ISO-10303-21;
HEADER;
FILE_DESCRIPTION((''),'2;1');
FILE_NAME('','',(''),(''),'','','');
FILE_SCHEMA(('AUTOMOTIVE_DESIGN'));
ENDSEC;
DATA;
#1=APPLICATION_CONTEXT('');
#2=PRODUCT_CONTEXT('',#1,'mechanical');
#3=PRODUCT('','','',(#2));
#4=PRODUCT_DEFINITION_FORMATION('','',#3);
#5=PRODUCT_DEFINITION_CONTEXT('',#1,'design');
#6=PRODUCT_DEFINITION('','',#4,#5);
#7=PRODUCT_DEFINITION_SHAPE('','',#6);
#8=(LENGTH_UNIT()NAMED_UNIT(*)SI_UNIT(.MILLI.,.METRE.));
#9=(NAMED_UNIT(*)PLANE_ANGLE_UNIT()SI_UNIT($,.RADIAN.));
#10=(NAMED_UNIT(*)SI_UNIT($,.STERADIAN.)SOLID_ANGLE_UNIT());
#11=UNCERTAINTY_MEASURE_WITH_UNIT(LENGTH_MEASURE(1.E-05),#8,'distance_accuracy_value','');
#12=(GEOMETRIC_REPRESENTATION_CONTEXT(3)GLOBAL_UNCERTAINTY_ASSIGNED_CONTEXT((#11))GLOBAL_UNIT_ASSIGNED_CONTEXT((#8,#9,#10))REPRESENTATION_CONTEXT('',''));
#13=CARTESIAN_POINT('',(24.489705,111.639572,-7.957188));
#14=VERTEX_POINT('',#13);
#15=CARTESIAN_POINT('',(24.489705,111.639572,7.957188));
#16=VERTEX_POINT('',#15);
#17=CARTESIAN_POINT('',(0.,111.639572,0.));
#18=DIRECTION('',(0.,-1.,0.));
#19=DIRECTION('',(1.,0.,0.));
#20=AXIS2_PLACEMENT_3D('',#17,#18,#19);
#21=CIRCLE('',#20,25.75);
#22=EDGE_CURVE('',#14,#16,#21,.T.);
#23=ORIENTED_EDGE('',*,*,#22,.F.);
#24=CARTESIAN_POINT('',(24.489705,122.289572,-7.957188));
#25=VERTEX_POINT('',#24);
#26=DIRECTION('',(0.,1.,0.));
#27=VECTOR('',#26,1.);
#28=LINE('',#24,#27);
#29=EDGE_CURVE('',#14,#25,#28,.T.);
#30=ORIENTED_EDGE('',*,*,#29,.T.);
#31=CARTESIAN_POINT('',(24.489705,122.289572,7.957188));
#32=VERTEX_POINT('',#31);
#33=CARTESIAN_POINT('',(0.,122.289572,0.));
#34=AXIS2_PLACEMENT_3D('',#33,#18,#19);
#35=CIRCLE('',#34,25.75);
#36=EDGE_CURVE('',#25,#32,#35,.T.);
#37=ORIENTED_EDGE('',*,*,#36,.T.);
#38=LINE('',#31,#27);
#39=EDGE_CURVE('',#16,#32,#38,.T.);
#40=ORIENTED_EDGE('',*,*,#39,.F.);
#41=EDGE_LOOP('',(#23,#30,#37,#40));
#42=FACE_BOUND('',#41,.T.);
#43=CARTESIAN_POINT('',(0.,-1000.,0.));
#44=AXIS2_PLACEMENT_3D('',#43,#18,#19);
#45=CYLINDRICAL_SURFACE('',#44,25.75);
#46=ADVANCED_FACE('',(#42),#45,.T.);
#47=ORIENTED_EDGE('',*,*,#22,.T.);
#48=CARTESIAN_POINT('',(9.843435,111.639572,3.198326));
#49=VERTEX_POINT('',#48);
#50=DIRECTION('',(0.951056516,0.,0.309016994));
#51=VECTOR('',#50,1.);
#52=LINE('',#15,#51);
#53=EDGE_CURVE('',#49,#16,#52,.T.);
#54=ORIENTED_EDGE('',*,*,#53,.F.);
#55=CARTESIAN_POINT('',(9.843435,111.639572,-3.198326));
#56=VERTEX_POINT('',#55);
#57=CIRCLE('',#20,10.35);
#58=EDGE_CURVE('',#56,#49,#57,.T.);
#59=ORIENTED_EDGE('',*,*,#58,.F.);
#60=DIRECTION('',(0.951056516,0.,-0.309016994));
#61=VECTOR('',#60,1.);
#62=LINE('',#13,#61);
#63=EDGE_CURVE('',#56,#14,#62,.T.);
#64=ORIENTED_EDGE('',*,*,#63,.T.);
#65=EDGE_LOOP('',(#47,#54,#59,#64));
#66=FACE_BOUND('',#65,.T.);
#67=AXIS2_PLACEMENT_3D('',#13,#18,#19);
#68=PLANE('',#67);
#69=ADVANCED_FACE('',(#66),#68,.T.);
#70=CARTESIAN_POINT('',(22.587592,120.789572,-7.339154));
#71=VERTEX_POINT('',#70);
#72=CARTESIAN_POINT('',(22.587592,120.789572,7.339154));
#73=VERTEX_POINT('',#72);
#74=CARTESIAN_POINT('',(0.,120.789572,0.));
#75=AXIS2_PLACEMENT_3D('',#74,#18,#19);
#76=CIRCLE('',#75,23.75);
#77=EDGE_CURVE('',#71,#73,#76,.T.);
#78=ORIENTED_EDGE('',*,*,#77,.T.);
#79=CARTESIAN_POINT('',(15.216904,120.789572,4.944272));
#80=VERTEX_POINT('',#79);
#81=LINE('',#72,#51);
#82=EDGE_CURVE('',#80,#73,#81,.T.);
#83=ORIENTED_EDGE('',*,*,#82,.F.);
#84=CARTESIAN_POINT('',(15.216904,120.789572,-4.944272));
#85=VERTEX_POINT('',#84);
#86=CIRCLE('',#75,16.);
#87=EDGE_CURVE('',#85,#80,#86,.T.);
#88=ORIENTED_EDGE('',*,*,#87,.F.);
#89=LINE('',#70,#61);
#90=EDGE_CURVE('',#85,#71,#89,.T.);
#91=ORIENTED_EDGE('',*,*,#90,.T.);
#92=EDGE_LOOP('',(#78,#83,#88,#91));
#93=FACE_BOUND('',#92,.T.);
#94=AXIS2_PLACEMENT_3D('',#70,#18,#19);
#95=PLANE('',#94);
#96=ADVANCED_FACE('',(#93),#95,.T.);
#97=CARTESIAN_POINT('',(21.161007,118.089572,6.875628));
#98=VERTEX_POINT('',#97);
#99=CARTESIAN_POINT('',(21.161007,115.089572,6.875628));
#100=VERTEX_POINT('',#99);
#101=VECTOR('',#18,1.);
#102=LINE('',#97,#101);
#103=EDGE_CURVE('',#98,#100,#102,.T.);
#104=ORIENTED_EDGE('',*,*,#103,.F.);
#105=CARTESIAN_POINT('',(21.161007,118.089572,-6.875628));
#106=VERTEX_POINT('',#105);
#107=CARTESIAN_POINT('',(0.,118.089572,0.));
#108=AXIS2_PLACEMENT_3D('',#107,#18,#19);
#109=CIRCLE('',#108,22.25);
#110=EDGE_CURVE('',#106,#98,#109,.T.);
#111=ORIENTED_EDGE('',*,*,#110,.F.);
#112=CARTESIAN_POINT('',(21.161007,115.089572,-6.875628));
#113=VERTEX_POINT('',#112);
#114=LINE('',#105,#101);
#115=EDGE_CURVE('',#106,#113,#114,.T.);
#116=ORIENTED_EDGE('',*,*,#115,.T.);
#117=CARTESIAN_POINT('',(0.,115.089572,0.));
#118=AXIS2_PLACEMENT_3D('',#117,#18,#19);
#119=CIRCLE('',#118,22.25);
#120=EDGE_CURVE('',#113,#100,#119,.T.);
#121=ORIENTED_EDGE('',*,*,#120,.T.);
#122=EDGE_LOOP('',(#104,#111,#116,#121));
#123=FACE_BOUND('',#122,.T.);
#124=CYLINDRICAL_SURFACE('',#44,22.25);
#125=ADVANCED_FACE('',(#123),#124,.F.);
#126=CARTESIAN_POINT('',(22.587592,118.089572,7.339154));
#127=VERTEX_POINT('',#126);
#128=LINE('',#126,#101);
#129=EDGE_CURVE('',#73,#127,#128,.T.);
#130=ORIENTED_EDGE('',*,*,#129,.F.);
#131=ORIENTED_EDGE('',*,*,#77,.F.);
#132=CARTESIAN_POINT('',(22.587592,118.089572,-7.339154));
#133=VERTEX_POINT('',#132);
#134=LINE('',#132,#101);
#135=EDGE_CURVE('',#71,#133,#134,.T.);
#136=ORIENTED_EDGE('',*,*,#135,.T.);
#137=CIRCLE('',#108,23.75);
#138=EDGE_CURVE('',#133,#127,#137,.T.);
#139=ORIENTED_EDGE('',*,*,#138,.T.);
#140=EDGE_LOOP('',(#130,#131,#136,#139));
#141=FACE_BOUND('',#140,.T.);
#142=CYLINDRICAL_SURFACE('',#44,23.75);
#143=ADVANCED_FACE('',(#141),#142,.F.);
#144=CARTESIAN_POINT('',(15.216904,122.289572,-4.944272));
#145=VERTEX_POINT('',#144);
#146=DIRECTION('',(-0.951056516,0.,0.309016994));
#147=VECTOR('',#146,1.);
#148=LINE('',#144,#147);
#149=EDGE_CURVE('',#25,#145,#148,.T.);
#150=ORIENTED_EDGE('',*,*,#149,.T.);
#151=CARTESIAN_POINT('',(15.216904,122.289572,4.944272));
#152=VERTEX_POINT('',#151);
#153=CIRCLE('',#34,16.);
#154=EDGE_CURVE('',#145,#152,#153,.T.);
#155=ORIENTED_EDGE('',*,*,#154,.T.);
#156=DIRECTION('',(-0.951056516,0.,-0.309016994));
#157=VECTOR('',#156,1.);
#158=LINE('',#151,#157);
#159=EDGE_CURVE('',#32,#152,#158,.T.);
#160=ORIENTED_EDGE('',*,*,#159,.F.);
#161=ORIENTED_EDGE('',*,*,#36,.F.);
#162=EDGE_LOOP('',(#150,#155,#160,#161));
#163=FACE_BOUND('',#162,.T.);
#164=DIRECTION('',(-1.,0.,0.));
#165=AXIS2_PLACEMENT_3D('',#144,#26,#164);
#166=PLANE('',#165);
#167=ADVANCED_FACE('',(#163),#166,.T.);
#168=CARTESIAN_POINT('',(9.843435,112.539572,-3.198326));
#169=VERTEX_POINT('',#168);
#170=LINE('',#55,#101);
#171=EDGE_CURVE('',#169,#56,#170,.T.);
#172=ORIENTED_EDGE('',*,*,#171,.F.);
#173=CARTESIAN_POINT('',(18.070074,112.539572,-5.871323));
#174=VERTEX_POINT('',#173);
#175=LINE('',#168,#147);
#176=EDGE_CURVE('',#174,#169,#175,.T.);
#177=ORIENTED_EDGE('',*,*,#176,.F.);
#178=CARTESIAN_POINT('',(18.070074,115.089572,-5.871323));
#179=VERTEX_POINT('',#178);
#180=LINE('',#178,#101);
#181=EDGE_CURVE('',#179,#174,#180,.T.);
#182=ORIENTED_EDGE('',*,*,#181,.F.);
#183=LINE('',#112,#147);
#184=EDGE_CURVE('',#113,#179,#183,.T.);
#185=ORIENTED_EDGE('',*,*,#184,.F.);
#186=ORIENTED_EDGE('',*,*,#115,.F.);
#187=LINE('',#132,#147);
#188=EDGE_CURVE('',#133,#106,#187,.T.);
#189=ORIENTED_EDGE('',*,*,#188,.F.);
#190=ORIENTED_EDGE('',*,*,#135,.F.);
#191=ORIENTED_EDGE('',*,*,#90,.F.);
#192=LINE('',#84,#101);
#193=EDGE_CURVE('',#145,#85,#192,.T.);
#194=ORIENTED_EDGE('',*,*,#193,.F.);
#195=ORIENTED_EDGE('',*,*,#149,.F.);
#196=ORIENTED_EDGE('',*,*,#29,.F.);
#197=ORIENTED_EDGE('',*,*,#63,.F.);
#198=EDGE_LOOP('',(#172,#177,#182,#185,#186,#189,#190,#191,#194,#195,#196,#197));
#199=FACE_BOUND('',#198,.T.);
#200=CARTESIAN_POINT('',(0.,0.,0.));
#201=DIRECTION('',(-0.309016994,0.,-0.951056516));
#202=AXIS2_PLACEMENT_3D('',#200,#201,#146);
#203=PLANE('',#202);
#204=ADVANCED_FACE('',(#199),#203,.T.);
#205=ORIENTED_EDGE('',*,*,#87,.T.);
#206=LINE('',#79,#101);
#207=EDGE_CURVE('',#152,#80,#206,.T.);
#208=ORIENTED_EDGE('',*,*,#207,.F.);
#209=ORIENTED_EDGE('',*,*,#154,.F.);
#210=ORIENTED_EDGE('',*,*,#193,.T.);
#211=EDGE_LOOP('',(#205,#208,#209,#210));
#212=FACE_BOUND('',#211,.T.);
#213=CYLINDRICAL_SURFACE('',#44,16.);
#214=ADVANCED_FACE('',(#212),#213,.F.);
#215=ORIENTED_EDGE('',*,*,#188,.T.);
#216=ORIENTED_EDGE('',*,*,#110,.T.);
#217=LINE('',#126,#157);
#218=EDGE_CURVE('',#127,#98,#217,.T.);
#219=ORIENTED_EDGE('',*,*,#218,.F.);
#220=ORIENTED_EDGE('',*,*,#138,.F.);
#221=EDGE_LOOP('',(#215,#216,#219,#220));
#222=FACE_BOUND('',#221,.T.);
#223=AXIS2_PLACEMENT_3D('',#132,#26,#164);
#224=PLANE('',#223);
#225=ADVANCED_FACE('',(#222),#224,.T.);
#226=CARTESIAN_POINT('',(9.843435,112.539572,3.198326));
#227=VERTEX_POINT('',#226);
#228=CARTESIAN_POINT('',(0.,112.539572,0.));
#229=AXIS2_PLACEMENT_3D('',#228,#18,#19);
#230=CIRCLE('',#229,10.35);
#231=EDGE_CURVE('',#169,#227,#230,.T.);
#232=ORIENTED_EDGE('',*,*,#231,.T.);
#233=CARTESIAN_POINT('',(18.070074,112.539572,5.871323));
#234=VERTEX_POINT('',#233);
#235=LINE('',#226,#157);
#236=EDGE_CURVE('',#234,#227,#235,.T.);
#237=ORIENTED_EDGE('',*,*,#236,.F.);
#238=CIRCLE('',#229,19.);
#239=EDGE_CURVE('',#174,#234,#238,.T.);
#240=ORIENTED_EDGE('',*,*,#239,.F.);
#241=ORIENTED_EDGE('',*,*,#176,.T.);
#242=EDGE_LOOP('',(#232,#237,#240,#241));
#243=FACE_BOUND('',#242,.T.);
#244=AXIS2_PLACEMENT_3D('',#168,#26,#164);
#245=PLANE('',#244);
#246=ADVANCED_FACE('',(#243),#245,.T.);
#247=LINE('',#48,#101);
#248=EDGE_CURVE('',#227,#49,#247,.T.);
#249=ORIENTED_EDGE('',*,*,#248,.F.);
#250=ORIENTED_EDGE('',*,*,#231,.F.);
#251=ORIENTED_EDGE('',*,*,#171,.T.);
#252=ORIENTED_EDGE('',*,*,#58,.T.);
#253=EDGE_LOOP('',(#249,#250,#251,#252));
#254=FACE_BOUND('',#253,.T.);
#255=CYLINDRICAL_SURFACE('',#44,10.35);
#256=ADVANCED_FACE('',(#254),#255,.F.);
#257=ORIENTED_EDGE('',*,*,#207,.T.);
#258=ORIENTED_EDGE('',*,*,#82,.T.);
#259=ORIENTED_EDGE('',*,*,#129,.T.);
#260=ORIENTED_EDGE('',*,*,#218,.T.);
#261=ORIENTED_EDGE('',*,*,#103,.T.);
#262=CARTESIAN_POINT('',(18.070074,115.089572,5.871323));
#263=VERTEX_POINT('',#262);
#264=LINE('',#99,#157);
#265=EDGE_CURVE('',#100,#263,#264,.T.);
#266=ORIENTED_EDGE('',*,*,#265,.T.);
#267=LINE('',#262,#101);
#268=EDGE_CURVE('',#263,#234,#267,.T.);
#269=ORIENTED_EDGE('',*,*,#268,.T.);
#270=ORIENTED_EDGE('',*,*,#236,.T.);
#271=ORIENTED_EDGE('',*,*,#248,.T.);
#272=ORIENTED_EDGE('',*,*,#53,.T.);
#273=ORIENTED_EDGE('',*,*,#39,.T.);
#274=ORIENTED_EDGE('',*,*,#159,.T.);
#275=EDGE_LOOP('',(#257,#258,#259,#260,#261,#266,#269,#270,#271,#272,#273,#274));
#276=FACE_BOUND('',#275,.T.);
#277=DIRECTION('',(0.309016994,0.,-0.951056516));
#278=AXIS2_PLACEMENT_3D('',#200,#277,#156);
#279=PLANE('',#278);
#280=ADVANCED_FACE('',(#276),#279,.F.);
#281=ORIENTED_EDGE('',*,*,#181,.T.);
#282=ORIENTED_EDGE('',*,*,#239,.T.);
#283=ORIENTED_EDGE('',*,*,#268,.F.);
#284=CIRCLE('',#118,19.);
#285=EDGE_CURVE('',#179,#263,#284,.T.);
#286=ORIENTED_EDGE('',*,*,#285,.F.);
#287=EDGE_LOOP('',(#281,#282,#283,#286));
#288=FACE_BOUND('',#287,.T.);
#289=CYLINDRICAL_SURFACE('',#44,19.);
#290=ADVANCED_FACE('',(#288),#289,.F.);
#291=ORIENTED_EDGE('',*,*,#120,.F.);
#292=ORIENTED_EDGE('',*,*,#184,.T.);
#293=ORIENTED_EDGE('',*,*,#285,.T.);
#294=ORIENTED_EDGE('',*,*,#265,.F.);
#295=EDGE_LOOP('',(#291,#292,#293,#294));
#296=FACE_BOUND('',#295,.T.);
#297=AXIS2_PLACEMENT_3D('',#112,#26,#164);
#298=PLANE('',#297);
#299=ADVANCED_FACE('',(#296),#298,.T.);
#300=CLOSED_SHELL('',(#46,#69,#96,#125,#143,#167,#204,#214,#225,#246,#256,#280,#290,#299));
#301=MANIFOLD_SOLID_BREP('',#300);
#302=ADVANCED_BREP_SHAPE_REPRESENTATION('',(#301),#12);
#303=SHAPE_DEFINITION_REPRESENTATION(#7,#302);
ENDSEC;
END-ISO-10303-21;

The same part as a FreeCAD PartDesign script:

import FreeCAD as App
import Part
import Sketcher
from FreeCAD import Vector

doc = App.newDocument("Part")
body = doc.addObject("PartDesign::Body", "Body")

sketch1 = body.newObject("Sketcher::SketchObject", "Sketch")
sketch1.AttachmentSupport = (doc.getObject("XY_Plane"), [""])
sketch1.MapMode = "FlatFace"
sketch1.addGeometry([
    Part.LineSegment(Vector(19, 112.5, 0), Vector(10.3, 112.5, 0)),
    Part.LineSegment(Vector(10.3, 112.5, 0), Vector(10.3, 111.6, 0)),
    Part.LineSegment(Vector(10.3, 111.6, 0), Vector(25.8, 111.6, 0)),
    Part.LineSegment(Vector(25.8, 111.6, 0), Vector(25.8, 122.3, 0)),
    Part.LineSegment(Vector(25.8, 122.3, 0), Vector(16, 122.3, 0)),
    Part.LineSegment(Vector(16, 122.3, 0), Vector(16, 120.8, 0)),
    Part.LineSegment(Vector(16, 120.8, 0), Vector(23.8, 120.8, 0)),
    Part.LineSegment(Vector(23.8, 120.8, 0), Vector(23.8, 118.1, 0)),
    Part.LineSegment(Vector(23.8, 118.1, 0), Vector(22.2, 118.1, 0)),
    Part.LineSegment(Vector(22.2, 118.1, 0), Vector(22.2, 115.1, 0)),
    Part.LineSegment(Vector(22.2, 115.1, 0), Vector(19, 115.1, 0)),
    Part.LineSegment(Vector(19, 115.1, 0), Vector(19, 112.5, 0)),
], False)
sketch1.addConstraint([
    Sketcher.Constraint("Coincident", 0, 2, 1, 1),
    Sketcher.Constraint("Coincident", 1, 2, 2, 1),
    Sketcher.Constraint("Coincident", 2, 2, 3, 1),
    Sketcher.Constraint("Coincident", 3, 2, 4, 1),
    Sketcher.Constraint("Coincident", 4, 2, 5, 1),
    Sketcher.Constraint("Coincident", 5, 2, 6, 1),
    Sketcher.Constraint("Coincident", 6, 2, 7, 1),
    Sketcher.Constraint("Coincident", 7, 2, 8, 1),
    Sketcher.Constraint("Coincident", 8, 2, 9, 1),
    Sketcher.Constraint("Coincident", 9, 2, 10, 1),
    Sketcher.Constraint("Coincident", 10, 2, 11, 1),
    Sketcher.Constraint("Coincident", 11, 2, 0, 1),
    Sketcher.Constraint("Horizontal", 0),
    Sketcher.Constraint("Vertical", 1),
    Sketcher.Constraint("Horizontal", 2),
    Sketcher.Constraint("Vertical", 3),
    Sketcher.Constraint("Horizontal", 4),
    Sketcher.Constraint("Vertical", 5),
    Sketcher.Constraint("Horizontal", 6),
    Sketcher.Constraint("Vertical", 7),
    Sketcher.Constraint("Horizontal", 8),
    Sketcher.Constraint("Vertical", 9),
    Sketcher.Constraint("Horizontal", 10),
    Sketcher.Constraint("Vertical", 11),
    Sketcher.Constraint("Equal", 8, 5),
    Sketcher.Constraint("DistanceY", 9, 2, 9, 1, 3.0),
    Sketcher.Constraint("DistanceX", 2, 1, 2, 2, 15.4),
    Sketcher.Constraint("DistanceX", 8, 2, 8, 1, 1.5),
    Sketcher.Constraint("DistanceY", 1, 2, 1, 1, 0.9),
    Sketcher.Constraint("DistanceY", 7, 2, 7, 1, 2.7),
    Sketcher.Constraint("DistanceX", -1, 1, 4, 2, 16.0),
    Sketcher.Constraint("DistanceX", -1, 1, 10, 2, 19.0),
    Sketcher.Constraint("DistanceX", 6, 2, 3, 2, 2.0),
    Sketcher.Constraint("DistanceX", 0, 2, 0, 1, 8.65),
    Sketcher.Constraint("DistanceY", 3, 1, 3, 2, 10.65),
    Sketcher.Constraint("DistanceY", -1, 1, 0, 2, 112.539572),
])
revolution = body.newObject("PartDesign::Revolution", "Revolution")
revolution.Profile = sketch1
revolution.ReferenceAxis = (sketch1, ["V_Axis"])
revolution.Angle = 18

sketch2 = body.newObject("Sketcher::SketchObject", "Sketch001")
sketch2.AttachmentSupport = (doc.getObject("XY_Plane"), [""])
sketch2.MapMode = "FlatFace"
sketch2.addGeometry([
    Part.LineSegment(Vector(19, 112.5, 0), Vector(10.3, 112.5, 0)),
    Part.LineSegment(Vector(10.3, 112.5, 0), Vector(10.3, 111.6, 0)),
    Part.LineSegment(Vector(10.3, 111.6, 0), Vector(25.8, 111.6, 0)),
    Part.LineSegment(Vector(25.8, 111.6, 0), Vector(25.8, 122.3, 0)),
    Part.LineSegment(Vector(25.8, 122.3, 0), Vector(16, 122.3, 0)),
    Part.LineSegment(Vector(16, 122.3, 0), Vector(16, 120.8, 0)),
    Part.LineSegment(Vector(16, 120.8, 0), Vector(23.8, 120.8, 0)),
    Part.LineSegment(Vector(23.8, 120.8, 0), Vector(23.8, 118.1, 0)),
    Part.LineSegment(Vector(23.8, 118.1, 0), Vector(22.2, 118.1, 0)),
    Part.LineSegment(Vector(22.2, 118.1, 0), Vector(22.2, 115.1, 0)),
    Part.LineSegment(Vector(22.2, 115.1, 0), Vector(19, 115.1, 0)),
    Part.LineSegment(Vector(19, 115.1, 0), Vector(19, 112.5, 0)),
], False)
sketch2.addConstraint([
    Sketcher.Constraint("Coincident", 0, 2, 1, 1),
    Sketcher.Constraint("Coincident", 1, 2, 2, 1),
    Sketcher.Constraint("Coincident", 2, 2, 3, 1),
    Sketcher.Constraint("Coincident", 3, 2, 4, 1),
    Sketcher.Constraint("Coincident", 4, 2, 5, 1),
    Sketcher.Constraint("Coincident", 5, 2, 6, 1),
    Sketcher.Constraint("Coincident", 6, 2, 7, 1),
    Sketcher.Constraint("Coincident", 7, 2, 8, 1),
    Sketcher.Constraint("Coincident", 8, 2, 9, 1),
    Sketcher.Constraint("Coincident", 9, 2, 10, 1),
    Sketcher.Constraint("Coincident", 10, 2, 11, 1),
    Sketcher.Constraint("Coincident", 11, 2, 0, 1),
    Sketcher.Constraint("Horizontal", 0),
    Sketcher.Constraint("Vertical", 1),
    Sketcher.Constraint("Horizontal", 2),
    Sketcher.Constraint("Vertical", 3),
    Sketcher.Constraint("Horizontal", 4),
    Sketcher.Constraint("Vertical", 5),
    Sketcher.Constraint("Horizontal", 6),
    Sketcher.Constraint("Vertical", 7),
    Sketcher.Constraint("Horizontal", 8),
    Sketcher.Constraint("Vertical", 9),
    Sketcher.Constraint("Horizontal", 10),
    Sketcher.Constraint("Vertical", 11),
    Sketcher.Constraint("Equal", 8, 5),
    Sketcher.Constraint("DistanceY", 9, 2, 9, 1, 3.0),
    Sketcher.Constraint("DistanceX", 2, 1, 2, 2, 15.4),
    Sketcher.Constraint("DistanceX", 8, 2, 8, 1, 1.5),
    Sketcher.Constraint("DistanceY", 1, 2, 1, 1, 0.9),
    Sketcher.Constraint("DistanceY", 7, 2, 7, 1, 2.7),
    Sketcher.Constraint("DistanceX", -1, 1, 4, 2, 16.0),
    Sketcher.Constraint("DistanceX", -1, 1, 10, 2, 19.0),
    Sketcher.Constraint("DistanceX", 6, 2, 3, 2, 2.0),
    Sketcher.Constraint("DistanceX", 0, 2, 0, 1, 8.65),
    Sketcher.Constraint("DistanceY", 3, 1, 3, 2, 10.65),
    Sketcher.Constraint("DistanceY", -1, 1, 0, 2, 112.539572),
])
revolution2 = body.newObject("PartDesign::Revolution", "Revolution001")
revolution2.Profile = sketch2
revolution2.ReferenceAxis = (sketch2, ["V_Axis"])
revolution2.Angle = 18
revolution2.Reversed = True

doc.recompute()
